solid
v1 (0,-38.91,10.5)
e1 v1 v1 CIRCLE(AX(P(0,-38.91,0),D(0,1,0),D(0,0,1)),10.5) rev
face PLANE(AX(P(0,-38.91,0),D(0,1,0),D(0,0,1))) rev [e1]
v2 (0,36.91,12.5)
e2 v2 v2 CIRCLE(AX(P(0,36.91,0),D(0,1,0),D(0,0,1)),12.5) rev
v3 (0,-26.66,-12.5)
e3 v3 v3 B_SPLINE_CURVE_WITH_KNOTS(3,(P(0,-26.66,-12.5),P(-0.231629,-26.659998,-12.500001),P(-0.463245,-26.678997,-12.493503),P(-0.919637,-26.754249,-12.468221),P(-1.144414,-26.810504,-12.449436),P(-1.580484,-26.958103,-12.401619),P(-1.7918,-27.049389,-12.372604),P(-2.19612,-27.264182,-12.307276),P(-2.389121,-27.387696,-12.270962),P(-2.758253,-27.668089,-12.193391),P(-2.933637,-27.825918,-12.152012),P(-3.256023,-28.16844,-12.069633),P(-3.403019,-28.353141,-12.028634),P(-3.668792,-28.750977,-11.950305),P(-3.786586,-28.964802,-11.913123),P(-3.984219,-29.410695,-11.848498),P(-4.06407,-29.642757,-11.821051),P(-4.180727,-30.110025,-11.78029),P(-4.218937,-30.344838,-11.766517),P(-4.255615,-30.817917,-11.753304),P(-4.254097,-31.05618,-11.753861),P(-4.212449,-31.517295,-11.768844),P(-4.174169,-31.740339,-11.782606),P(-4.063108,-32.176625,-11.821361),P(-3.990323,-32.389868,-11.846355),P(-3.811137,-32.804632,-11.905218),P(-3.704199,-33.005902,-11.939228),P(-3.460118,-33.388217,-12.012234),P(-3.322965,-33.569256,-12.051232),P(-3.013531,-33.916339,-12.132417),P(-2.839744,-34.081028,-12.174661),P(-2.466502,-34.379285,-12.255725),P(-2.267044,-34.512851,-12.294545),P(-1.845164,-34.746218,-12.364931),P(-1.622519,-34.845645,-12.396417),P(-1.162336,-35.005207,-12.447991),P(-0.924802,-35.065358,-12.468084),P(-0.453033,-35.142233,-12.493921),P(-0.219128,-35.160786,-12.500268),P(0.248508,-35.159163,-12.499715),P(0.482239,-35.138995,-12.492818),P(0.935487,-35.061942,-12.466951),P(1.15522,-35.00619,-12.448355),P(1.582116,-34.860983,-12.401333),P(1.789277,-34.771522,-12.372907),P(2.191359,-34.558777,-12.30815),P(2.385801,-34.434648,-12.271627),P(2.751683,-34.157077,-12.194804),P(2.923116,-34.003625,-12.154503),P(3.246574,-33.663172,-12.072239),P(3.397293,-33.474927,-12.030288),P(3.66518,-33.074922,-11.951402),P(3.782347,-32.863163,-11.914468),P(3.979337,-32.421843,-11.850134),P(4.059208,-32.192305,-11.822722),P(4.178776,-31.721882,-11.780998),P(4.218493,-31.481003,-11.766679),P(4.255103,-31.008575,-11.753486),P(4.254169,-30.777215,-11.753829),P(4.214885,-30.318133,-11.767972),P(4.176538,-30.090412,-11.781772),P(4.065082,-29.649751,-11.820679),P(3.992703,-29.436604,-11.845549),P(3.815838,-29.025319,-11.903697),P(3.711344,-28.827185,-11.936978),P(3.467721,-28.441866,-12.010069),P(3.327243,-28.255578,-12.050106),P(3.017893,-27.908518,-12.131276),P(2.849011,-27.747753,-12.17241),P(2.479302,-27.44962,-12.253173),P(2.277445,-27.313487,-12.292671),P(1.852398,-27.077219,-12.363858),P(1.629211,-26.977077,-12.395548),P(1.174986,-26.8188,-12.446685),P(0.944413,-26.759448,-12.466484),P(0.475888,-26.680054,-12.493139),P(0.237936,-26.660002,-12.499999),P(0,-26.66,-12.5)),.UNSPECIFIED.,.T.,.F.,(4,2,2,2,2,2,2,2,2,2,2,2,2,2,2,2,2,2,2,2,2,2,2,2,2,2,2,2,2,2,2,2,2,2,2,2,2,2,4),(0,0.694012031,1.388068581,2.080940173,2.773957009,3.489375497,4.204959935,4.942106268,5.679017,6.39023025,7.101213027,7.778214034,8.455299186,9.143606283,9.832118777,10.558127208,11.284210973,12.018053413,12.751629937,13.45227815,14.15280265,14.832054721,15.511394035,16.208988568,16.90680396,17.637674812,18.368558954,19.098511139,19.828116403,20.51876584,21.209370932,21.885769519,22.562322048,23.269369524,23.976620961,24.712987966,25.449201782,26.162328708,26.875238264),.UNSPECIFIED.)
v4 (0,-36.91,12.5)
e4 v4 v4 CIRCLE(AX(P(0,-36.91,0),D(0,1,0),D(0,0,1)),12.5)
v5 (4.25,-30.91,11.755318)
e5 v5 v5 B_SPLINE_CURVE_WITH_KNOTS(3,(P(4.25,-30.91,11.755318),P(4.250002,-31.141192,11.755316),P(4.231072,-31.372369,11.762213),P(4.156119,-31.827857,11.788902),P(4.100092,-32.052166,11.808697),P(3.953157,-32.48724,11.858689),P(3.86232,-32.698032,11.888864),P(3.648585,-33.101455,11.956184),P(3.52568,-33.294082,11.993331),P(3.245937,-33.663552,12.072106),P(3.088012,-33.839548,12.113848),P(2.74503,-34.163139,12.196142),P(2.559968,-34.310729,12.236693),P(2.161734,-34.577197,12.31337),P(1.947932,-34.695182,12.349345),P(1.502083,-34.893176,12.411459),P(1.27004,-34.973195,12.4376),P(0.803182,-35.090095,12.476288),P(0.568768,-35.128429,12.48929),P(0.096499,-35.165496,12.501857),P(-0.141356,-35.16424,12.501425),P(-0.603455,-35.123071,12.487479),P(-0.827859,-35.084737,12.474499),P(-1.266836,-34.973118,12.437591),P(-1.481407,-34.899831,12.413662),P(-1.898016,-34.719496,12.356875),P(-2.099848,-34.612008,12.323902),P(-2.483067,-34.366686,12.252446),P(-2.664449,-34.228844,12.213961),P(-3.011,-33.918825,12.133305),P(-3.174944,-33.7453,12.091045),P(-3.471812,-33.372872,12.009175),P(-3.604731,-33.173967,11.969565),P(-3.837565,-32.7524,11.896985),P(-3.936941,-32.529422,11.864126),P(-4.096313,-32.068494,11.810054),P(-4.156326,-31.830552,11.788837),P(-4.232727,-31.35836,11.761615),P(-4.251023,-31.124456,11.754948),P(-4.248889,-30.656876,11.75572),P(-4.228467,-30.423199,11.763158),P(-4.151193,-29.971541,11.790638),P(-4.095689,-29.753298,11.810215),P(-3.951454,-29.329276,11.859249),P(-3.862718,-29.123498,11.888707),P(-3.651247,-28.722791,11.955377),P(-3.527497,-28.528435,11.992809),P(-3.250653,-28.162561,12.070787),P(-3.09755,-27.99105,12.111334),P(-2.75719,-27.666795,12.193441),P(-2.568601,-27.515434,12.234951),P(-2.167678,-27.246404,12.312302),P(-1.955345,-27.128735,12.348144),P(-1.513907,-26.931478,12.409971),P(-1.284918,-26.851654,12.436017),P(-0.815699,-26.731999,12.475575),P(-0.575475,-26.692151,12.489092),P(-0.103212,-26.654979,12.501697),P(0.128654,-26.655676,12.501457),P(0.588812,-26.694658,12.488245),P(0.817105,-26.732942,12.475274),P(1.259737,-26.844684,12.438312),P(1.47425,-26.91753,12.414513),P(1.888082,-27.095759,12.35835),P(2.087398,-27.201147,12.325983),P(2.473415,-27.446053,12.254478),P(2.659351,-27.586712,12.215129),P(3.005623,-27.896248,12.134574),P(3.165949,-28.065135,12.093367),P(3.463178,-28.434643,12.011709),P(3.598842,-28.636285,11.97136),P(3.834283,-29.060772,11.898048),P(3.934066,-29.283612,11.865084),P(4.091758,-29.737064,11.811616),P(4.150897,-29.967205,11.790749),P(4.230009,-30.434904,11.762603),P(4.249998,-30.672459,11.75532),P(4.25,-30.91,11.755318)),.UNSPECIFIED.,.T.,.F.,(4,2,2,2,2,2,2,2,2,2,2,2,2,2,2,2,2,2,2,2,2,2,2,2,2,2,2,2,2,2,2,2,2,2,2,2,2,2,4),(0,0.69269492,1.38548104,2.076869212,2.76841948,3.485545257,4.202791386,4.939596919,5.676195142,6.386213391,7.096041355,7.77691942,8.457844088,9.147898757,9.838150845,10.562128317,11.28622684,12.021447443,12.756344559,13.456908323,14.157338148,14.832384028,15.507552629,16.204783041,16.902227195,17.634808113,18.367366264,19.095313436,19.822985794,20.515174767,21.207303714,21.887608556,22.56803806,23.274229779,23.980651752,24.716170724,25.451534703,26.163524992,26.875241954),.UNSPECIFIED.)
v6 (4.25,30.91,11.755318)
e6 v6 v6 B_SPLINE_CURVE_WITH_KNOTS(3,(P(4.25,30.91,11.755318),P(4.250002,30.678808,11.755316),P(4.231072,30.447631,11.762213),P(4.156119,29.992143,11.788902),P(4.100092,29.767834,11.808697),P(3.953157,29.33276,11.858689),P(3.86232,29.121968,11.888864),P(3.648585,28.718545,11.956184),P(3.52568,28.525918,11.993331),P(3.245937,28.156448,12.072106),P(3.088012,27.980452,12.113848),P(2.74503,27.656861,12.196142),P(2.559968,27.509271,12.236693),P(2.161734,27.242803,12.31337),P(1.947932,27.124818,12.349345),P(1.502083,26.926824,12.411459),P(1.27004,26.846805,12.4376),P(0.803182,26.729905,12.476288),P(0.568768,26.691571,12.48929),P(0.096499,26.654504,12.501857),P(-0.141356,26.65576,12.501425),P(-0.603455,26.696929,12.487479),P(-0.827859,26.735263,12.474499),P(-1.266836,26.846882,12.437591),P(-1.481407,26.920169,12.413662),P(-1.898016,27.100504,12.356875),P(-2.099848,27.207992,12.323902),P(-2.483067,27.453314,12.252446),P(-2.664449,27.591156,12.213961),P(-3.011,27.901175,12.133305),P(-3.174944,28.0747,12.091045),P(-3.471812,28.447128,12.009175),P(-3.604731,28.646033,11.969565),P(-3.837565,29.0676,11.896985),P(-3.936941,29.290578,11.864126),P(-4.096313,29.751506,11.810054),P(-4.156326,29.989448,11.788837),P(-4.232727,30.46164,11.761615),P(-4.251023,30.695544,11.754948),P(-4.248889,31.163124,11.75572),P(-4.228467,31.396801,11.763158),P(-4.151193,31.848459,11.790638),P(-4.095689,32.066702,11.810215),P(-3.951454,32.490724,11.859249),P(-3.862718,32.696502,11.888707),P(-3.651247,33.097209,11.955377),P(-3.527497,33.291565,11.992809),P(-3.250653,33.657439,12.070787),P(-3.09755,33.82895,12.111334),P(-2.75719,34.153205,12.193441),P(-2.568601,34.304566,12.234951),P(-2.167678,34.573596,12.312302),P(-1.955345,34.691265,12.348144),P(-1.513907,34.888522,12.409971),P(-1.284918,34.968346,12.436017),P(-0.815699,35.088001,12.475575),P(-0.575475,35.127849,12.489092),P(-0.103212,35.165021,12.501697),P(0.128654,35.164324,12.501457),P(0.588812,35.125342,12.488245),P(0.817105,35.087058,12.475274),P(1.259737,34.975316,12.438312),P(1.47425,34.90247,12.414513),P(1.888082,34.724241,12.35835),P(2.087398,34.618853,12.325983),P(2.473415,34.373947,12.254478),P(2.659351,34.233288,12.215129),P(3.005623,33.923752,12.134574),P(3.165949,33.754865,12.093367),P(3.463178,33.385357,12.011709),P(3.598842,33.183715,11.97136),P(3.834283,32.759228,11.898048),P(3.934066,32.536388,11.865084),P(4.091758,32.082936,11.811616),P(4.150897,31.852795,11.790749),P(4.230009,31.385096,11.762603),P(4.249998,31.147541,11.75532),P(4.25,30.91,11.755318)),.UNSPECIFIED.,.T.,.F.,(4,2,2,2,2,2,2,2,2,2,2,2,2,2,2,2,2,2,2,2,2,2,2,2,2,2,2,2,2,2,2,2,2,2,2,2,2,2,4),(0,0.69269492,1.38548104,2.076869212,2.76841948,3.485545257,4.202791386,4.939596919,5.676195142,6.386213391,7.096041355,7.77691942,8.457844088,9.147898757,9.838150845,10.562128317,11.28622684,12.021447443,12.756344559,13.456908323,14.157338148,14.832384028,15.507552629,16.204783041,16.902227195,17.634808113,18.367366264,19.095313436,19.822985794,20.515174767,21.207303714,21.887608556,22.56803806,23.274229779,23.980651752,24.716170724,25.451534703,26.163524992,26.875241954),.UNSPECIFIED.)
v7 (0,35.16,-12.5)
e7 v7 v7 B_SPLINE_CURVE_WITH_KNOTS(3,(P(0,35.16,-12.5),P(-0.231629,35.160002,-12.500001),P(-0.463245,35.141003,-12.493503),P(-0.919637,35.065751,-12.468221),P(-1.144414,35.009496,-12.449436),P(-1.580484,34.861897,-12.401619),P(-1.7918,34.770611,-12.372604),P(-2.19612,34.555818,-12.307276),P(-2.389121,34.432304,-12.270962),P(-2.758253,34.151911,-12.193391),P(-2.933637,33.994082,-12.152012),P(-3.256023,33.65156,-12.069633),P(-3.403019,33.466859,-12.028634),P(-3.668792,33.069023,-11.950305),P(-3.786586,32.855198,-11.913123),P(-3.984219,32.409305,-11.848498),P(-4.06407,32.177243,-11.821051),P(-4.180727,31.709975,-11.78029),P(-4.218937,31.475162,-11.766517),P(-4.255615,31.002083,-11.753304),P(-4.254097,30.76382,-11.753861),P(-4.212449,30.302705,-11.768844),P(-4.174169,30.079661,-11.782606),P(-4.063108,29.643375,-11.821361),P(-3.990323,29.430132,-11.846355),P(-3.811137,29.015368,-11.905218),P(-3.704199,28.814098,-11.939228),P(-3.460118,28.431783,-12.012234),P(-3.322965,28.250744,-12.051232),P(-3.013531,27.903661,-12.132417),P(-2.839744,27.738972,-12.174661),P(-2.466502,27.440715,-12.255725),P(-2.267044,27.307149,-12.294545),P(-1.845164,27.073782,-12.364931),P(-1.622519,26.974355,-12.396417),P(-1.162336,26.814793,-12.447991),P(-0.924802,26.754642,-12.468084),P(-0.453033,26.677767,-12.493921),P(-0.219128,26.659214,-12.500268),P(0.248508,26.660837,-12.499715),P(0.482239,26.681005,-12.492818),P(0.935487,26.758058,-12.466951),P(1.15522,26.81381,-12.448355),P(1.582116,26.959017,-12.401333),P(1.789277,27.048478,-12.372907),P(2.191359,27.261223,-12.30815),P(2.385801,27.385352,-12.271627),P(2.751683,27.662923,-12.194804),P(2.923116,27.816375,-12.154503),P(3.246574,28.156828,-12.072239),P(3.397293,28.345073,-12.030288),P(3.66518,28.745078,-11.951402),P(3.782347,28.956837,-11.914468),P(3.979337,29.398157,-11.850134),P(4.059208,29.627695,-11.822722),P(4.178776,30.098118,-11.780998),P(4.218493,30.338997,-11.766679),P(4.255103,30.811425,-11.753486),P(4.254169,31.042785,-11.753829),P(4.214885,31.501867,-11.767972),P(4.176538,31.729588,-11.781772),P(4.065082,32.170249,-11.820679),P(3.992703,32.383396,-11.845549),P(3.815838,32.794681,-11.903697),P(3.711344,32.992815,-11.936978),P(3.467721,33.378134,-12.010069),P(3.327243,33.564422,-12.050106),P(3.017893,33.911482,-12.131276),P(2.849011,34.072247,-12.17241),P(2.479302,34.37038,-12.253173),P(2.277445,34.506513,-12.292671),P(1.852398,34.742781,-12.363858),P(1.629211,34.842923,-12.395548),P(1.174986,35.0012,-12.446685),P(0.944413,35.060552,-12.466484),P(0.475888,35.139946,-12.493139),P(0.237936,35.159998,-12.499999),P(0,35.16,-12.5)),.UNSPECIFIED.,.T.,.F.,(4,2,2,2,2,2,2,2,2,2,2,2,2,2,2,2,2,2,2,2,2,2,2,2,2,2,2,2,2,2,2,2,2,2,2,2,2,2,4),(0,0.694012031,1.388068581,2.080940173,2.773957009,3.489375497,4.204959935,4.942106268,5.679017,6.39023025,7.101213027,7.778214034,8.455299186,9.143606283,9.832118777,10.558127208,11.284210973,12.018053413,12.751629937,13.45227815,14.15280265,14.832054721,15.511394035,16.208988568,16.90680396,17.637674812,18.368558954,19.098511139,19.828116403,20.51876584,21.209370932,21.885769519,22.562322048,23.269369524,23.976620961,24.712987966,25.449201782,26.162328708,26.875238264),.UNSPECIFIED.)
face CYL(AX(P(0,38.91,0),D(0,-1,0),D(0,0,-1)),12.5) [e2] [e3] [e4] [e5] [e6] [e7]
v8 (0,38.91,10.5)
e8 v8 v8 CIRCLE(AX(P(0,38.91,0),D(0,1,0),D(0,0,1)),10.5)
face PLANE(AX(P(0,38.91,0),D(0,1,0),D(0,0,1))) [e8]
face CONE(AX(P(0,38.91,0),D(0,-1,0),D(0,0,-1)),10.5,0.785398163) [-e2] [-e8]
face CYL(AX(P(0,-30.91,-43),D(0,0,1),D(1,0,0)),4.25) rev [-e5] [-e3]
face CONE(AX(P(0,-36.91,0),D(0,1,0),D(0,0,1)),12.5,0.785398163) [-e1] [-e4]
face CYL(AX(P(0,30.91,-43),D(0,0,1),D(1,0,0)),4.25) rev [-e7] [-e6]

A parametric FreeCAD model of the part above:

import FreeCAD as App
import Part
import Sketcher

V = App.Vector


def edges_at(feature, points):
    """Names of the edges that pass closest to the given points."""
    edges = feature.Shape.Edges
    near = lambda p: min(range(len(edges)), key=lambda i: edges[i].distToShape(Part.Vertex(*p))[0])
    return sorted({f"Edge{near(p) + 1}" for p in points})

doc = App.newDocument("Part")
params = doc.addObject("Spreadsheet::Sheet", "Params")
for row, (alias, value) in enumerate([
    ("sketch1_diameter", "25 mm"),
    ("pad1_length", "77.82 mm"),
    ("chamfer_size", "2 mm"),
    ("sketch2_diameter", "8.5 mm"),
    ("pocket1_length", "86 mm"),
], start=1):
    params.set(f"A{row}", alias)
    params.set(f"B{row}", "=" + value)
    params.setAlias(f"B{row}", alias)

body = doc.addObject("PartDesign::Body", "Body")

# Sketch on XZ plane
sketch1 = doc.addObject("Sketcher::SketchObject", "Sketch")
body.addObject(sketch1)
sketch1.AttachmentSupport = (doc.XZ_Plane, [""])
sketch1.MapMode = "FlatFace"
sketch1.addGeometry(Part.Circle(V(0, 0, 0), V(0, 0, 1), 12.5), False)
sketch1.addConstraint([
    Sketcher.Constraint("Coincident", 0, 3, -1, 1),
    Sketcher.Constraint("Diameter", 0, 25.0),
])
sketch1.setExpression("Constraints[1]", "Params.sketch1_diameter")
pad1 = doc.addObject("PartDesign::Pad", "Pad")
body.addObject(pad1)
pad1.Profile = sketch1
pad1.setExpression("Length", "Params.pad1_length")
pad1.Midplane = True
doc.recompute()

chamfer = doc.addObject("PartDesign::Chamfer", "Chamfer")
body.addObject(chamfer)
chamfer.Base = (pad1, edges_at(pad1, [(0, -38.91, -12.5), (0, 38.91, -12.5)]))
chamfer.setExpression("Size", "Params.chamfer_size")

# Sketch on XY plane
sketch2 = doc.addObject("Sketcher::SketchObject", "Sketch001")
body.addObject(sketch2)
sketch2.AttachmentSupport = (doc.XY_Plane, [""])
sketch2.MapMode = "FlatFace"
sketch2.addGeometry([
    Part.Circle(V(0, 30.91, 0), V(0, 0, 1), 4.25),
    Part.Circle(V(0, -30.91, 0), V(0, 0, 1), 4.25),
], False)
sketch2.addConstraint([
    Sketcher.Constraint("Equal", 0, 1),
    Sketcher.Constraint("Symmetric", 0, 3, 1, 3, -1, 1),
    Sketcher.Constraint("PointOnObject", 0, 3, -2),
    Sketcher.Constraint("Diameter", 0, 8.5),
    Sketcher.Constraint("DistanceY", -1, 1, 0, 3, 30.91),
])
sketch2.setExpression("Constraints[3]", "Params.sketch2_diameter")
pocket1 = doc.addObject("PartDesign::Pocket", "Pocket")
body.addObject(pocket1)
pocket1.Profile = sketch2
pocket1.setExpression("Length", "Params.pocket1_length")
pocket1.Midplane = True

doc.recompute()
